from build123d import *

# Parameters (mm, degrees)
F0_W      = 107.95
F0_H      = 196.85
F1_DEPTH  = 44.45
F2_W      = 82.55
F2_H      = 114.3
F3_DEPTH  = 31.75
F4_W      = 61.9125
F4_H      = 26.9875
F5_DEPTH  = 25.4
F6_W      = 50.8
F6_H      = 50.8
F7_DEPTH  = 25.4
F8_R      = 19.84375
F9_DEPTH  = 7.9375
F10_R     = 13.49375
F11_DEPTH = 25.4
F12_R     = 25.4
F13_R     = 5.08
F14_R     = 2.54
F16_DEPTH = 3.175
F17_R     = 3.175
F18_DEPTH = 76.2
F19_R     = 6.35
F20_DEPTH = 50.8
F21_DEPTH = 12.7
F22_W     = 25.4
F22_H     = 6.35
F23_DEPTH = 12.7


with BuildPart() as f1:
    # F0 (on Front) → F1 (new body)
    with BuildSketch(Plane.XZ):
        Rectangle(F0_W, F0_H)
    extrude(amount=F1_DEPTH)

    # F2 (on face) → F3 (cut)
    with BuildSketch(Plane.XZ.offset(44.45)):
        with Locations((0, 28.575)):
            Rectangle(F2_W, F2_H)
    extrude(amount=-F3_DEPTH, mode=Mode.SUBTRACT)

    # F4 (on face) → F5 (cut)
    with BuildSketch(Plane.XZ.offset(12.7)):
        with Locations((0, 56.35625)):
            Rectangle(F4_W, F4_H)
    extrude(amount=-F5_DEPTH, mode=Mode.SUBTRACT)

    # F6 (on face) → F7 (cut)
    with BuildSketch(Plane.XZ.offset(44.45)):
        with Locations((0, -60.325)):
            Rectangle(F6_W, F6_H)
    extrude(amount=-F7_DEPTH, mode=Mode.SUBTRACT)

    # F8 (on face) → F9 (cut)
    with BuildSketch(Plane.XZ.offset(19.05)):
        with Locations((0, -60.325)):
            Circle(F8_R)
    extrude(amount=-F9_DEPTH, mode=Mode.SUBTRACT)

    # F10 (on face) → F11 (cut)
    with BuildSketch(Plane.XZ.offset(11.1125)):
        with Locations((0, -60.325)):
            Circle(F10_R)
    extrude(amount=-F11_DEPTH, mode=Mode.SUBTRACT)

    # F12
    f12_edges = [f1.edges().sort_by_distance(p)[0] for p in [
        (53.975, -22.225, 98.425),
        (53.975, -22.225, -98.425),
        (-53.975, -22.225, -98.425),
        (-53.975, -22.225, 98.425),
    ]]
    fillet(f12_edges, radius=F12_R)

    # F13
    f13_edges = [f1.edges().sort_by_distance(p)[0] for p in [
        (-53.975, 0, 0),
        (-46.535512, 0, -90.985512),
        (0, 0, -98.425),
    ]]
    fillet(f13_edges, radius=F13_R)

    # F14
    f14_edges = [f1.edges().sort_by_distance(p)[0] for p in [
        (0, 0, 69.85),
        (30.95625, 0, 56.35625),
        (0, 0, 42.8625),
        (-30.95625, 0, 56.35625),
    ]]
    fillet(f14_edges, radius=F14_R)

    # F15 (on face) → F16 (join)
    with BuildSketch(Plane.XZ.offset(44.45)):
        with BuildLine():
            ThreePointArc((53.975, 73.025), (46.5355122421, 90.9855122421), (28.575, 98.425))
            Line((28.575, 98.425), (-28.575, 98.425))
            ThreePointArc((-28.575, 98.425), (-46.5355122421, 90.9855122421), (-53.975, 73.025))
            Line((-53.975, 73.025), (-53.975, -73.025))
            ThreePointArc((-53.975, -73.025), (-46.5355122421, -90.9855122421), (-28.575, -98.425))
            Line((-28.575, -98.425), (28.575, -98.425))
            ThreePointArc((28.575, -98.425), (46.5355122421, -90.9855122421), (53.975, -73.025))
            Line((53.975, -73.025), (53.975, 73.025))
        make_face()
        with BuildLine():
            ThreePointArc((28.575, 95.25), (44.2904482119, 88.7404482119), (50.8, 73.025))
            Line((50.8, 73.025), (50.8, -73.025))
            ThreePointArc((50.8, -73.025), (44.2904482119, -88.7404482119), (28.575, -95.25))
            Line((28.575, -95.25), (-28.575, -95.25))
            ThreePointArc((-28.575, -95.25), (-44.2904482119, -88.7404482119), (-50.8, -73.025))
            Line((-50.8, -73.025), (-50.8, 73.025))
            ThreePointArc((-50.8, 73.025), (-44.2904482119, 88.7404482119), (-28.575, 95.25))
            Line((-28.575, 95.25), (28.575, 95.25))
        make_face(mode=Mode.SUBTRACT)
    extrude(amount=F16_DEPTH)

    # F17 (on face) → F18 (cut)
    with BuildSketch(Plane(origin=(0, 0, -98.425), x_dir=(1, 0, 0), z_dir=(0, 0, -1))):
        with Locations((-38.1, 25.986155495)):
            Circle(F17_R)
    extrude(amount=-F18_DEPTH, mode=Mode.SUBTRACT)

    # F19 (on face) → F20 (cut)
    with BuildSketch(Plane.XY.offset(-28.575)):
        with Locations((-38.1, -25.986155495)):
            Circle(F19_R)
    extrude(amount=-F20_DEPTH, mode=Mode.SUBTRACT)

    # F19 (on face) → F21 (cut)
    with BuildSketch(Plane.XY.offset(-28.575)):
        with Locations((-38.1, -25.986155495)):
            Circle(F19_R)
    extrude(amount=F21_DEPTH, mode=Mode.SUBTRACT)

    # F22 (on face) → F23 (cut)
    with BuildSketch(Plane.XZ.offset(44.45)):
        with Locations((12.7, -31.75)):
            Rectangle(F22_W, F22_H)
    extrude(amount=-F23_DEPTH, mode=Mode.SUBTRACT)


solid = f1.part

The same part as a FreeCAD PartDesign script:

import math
import FreeCAD as App
import Part
import Sketcher
from FreeCAD import Vector
Q = App.Units.Quantity


def edges_at(feature, points):
    """Names of the edges that pass closest to the given points."""
    edges = feature.Shape.Edges
    near = lambda p: min(range(len(edges)), key=lambda i: edges[i].distToShape(Part.Vertex(*p))[0])
    return sorted({f"Edge{near(p) + 1}" for p in points})

doc = App.newDocument("Part")
params = doc.addObject("Spreadsheet::Sheet", "Params")
for row, (alias, value) in enumerate([
    ("sketch1_width", "4.25 in"),
    ("sketch1_height", "7.75 in"),
    ("pad1_length", "1.75 in"),
    ("sketch2_height", "4.5 in"),
    ("sketch2_width", "3.25 in"),
    ("pocket1_length", "1.25 in"),
    ("sketch3_width", "2.4375 in"),
    ("sketch3_height", "1.0625 in"),
    ("pocket2_length", "1 in"),
    ("sketch4_width", "2 in"),
    ("pocket3_length", "1 in"),
    ("sketch5_diameter", "1.5625 in"),
    ("pocket4_length", "0.3125 in"),
    ("sketch6_diameter", "1.0625 in"),
    ("pocket5_length", "1 in"),
    ("fillet_radius", "1 in"),
    ("fillet2_radius", "0.2 in"),
    ("fillet3_radius", "0.1 in"),
    ("sketch7_radius", "1 in"),
    ("sketch7_radius2", "0.875 in"),
    ("sketch7_height", "5.75 in"),
    ("pad2_length", "0.125 in"),
    ("sketch8_diameter", "0.25 in"),
    ("pocket6_length", "3 in"),
    ("sketch9_diameter", "0.5 in"),
    ("pocket7_length", "2 in"),
    ("sketch10_diameter", "0.5 in"),
    ("pocket8_length", "0.5 in"),
    ("sketch11_width", "1 in"),
    ("sketch11_height", "0.25 in"),
    ("pocket9_length", "0.5 in"),
], start=1):
    params.set(f"A{row}", alias)
    params.set(f"B{row}", "=" + value)
    params.setAlias(f"B{row}", alias)

body = doc.addObject("PartDesign::Body", "Body")

sketch1 = doc.addObject("Sketcher::SketchObject", "Sketch")
body.addObject(sketch1)
sketch1.AttachmentSupport = (doc.XZ_Plane, [""])
sketch1.MapMode = "FlatFace"
sketch1.addGeometry([
    Part.LineSegment(Vector(-53.975, 98.425, 0), Vector(-53.975, -98.425, 0)),
    Part.LineSegment(Vector(-53.975, -98.425, 0), Vector(53.975, -98.425, 0)),
    Part.LineSegment(Vector(53.975, -98.425, 0), Vector(53.975, 98.425, 0)),
    Part.LineSegment(Vector(53.975, 98.425, 0), Vector(-53.975, 98.425, 0)),
], False)
sketch1.addConstraint([
    Sketcher.Constraint("Coincident", 0, 2, 1, 1),
    Sketcher.Constraint("Coincident", 1, 2, 2, 1),
    Sketcher.Constraint("Coincident", 2, 2, 3, 1),
    Sketcher.Constraint("Coincident", 3, 2, 0, 1),
    Sketcher.Constraint("Vertical", 0),
    Sketcher.Constraint("Horizontal", 1),
    Sketcher.Constraint("Vertical", 2),
    Sketcher.Constraint("Horizontal", 3),
    Sketcher.Constraint("Symmetric", 0, 2, 2, 2, -1, 1),
    Sketcher.Constraint("DistanceX", 1, 1, 1, 2, Q("4.25 in")),
    Sketcher.Constraint("DistanceY", 0, 2, 0, 1, Q("7.75 in")),
])
sketch1.setExpression("Constraints[9]", "Params.sketch1_width")
sketch1.setExpression("Constraints[10]", "Params.sketch1_height")
pad1 = doc.addObject("PartDesign::Pad", "Pad")
body.addObject(pad1)
pad1.Profile = sketch1
pad1.setExpression("Length", "Params.pad1_length")

sketch2 = doc.addObject("Sketcher::SketchObject", "Sketch001")
body.addObject(sketch2)
sketch2.AttachmentSupport = (doc.XZ_Plane, [""])
sketch2.MapMode = "FlatFace"
sketch2.AttachmentOffset = App.Placement(Vector(0, 0, 1.75 * 25.4), App.Rotation())
sketch2.addGeometry([
    Part.LineSegment(Vector(-41.275, 85.725, 0), Vector(-41.275, -28.575, 0)),
    Part.LineSegment(Vector(-41.275, -28.575, 0), Vector(41.275, -28.575, 0)),
    Part.LineSegment(Vector(41.275, -28.575, 0), Vector(41.275, 85.725, 0)),
    Part.LineSegment(Vector(41.275, 85.725, 0), Vector(-41.275, 85.725, 0)),
], False)
sketch2.addConstraint([
    Sketcher.Constraint("Coincident", 0, 2, 1, 1),
    Sketcher.Constraint("Coincident", 1, 2, 2, 1),
    Sketcher.Constraint("Coincident", 2, 2, 3, 1),
    Sketcher.Constraint("Coincident", 3, 2, 0, 1),
    Sketcher.Constraint("Vertical", 0),
    Sketcher.Constraint("Horizontal", 1),
    Sketcher.Constraint("Vertical", 2),
    Sketcher.Constraint("Horizontal", 3),
    Sketcher.Constraint("DistanceY", 0, 2, 0, 1, Q("4.5 in")),
    Sketcher.Constraint("DistanceX", 1, 1, 1, 2, Q("3.25 in")),
    Sketcher.Constraint("DistanceX", 0, 2, -1, 1, Q("1.625 in")),
    Sketcher.Constraint("DistanceY", 0, 2, -1, 1, Q("1.125 in")),
])
sketch2.setExpression("Constraints[8]", "Params.sketch2_height")
sketch2.setExpression("Constraints[9]", "Params.sketch2_width")
pocket1 = doc.addObject("PartDesign::Pocket", "Pocket")
body.addObject(pocket1)
pocket1.Profile = sketch2
pocket1.setExpression("Length", "Params.pocket1_length")

sketch3 = doc.addObject("Sketcher::SketchObject", "Sketch002")
body.addObject(sketch3)
sketch3.AttachmentSupport = (doc.XZ_Plane, [""])
sketch3.MapMode = "FlatFace"
sketch3.AttachmentOffset = App.Placement(Vector(0, 0, 0.5 * 25.4), App.Rotation())
sketch3.addGeometry([
    Part.LineSegment(Vector(-30.95625, 69.85, 0), Vector(-30.95625, 42.8625, 0)),
    Part.LineSegment(Vector(-30.95625, 42.8625, 0), Vector(30.95625, 42.8625, 0)),
    Part.LineSegment(Vector(30.95625, 42.8625, 0), Vector(30.95625, 69.85, 0)),
    Part.LineSegment(Vector(30.95625, 69.85, 0), Vector(-30.95625, 69.85, 0)),
], False)
sketch3.addConstraint([
    Sketcher.Constraint("Coincident", 0, 2, 1, 1),
    Sketcher.Constraint("Coincident", 1, 2, 2, 1),
    Sketcher.Constraint("Coincident", 2, 2, 3, 1),
    Sketcher.Constraint("Coincident", 3, 2, 0, 1),
    Sketcher.Constraint("Vertical", 0),
    Sketcher.Constraint("Horizontal", 1),
    Sketcher.Constraint("Vertical", 2),
    Sketcher.Constraint("Horizontal", 3),
    Sketcher.Constraint("DistanceX", 1, 1, 1, 2, Q("2.4375 in")),
    Sketcher.Constraint("DistanceY", 0, 2, 0, 1, Q("1.0625 in")),
    Sketcher.Constraint("DistanceY", -1, 1, 2, 2, Q("2.75 in")),
    Sketcher.Constraint("DistanceX", 0, 2, -1, 1, Q("1.21875 in")),
])
sketch3.setExpression("Constraints[8]", "Params.sketch3_width")
sketch3.setExpression("Constraints[9]", "Params.sketch3_height")
pocket2 = doc.addObject("PartDesign::Pocket", "Pocket001")
body.addObject(pocket2)
pocket2.Profile = sketch3
pocket2.setExpression("Length", "Params.pocket2_length")

sketch4 = doc.addObject("Sketcher::SketchObject", "Sketch003")
body.addObject(sketch4)
sketch4.AttachmentSupport = (doc.XZ_Plane, [""])
sketch4.MapMode = "FlatFace"
sketch4.AttachmentOffset = App.Placement(Vector(0, 0, 1.75 * 25.4), App.Rotation())
sketch4.addGeometry([
    Part.LineSegment(Vector(-25.4, -34.925, 0), Vector(-25.4, -85.725, 0)),
    Part.LineSegment(Vector(-25.4, -85.725, 0), Vector(25.4, -85.725, 0)),
    Part.LineSegment(Vector(25.4, -85.725, 0), Vector(25.4, -34.925, 0)),
    Part.LineSegment(Vector(25.4, -34.925, 0), Vector(-25.4, -34.925, 0)),
], False)
sketch4.addConstraint([
    Sketcher.Constraint("Coincident", 0, 2, 1, 1),
    Sketcher.Constraint("Coincident", 1, 2, 2, 1),
    Sketcher.Constraint("Coincident", 2, 2, 3, 1),
    Sketcher.Constraint("Coincident", 3, 2, 0, 1),
    Sketcher.Constraint("Vertical", 0),
    Sketcher.Constraint("Horizontal", 1),
    Sketcher.Constraint("Vertical", 2),
    Sketcher.Constraint("Horizontal", 3),
    Sketcher.Constraint("Equal", 3, 0),
    Sketcher.Constraint("DistanceX", 1, 1, 1, 2, Q("2 in")),
    Sketcher.Constraint("DistanceX", 0, 2, -1, 1, Q("1 in")),
    Sketcher.Constraint("DistanceY", 0, 2, -1, 1, Q("3.375 in")),
])
sketch4.setExpression("Constraints[9]", "Params.sketch4_width")
pocket3 = doc.addObject("PartDesign::Pocket", "Pocket002")
body.addObject(pocket3)
pocket3.Profile = sketch4
pocket3.setExpression("Length", "Params.pocket3_length")

sketch5 = doc.addObject("Sketcher::SketchObject", "Sketch004")
body.addObject(sketch5)
sketch5.AttachmentSupport = (doc.XZ_Plane, [""])
sketch5.MapMode = "FlatFace"
sketch5.AttachmentOffset = App.Placement(Vector(0, 0, 0.75 * 25.4), App.Rotation())
sketch5.addGeometry(Part.Circle(Vector(0, -60.325, 0), Vector(0, 0, 1), 19.84375), False)
sketch5.addConstraint([
    Sketcher.Constraint("PointOnObject", 0, 3, -2),
    Sketcher.Constraint("Diameter", 0, Q("1.5625 in")),
    Sketcher.Constraint("DistanceY", 0, 3, -1, 1, Q("2.375 in")),
])
sketch5.setExpression("Constraints[1]", "Params.sketch5_diameter")
pocket4 = doc.addObject("PartDesign::Pocket", "Pocket003")
body.addObject(pocket4)
pocket4.Profile = sketch5
pocket4.setExpression("Length", "Params.pocket4_length")

sketch6 = doc.addObject("Sketcher::SketchObject", "Sketch005")
body.addObject(sketch6)
sketch6.AttachmentSupport = (doc.XZ_Plane, [""])
sketch6.MapMode = "FlatFace"
sketch6.AttachmentOffset = App.Placement(Vector(0, 0, 0.4375 * 25.4), App.Rotation())
sketch6.addGeometry(Part.Circle(Vector(0, -60.325, 0), Vector(0, 0, 1), 13.49375), False)
sketch6.addConstraint([
    Sketcher.Constraint("PointOnObject", 0, 3, -2),
    Sketcher.Constraint("Diameter", 0, Q("1.0625 in")),
    Sketcher.Constraint("DistanceY", 0, 3, -1, 1, Q("2.375 in")),
])
sketch6.setExpression("Constraints[1]", "Params.sketch6_diameter")
pocket5 = doc.addObject("PartDesign::Pocket", "Pocket004")
body.addObject(pocket5)
pocket5.Profile = sketch6
pocket5.setExpression("Length", "Params.pocket5_length")
doc.recompute()

fillet = doc.addObject("PartDesign::Fillet", "Fillet")
body.addObject(fillet)
fillet.Base = (pocket5, edges_at(pocket5, [
    (53.975, -22.225, 98.425),
    (53.975, -22.225, -98.425),
    (-53.975, -22.225, -98.425),
    (-53.975, -22.225, 98.425),
]))
fillet.setExpression("Radius", "Params.fillet_radius")
doc.recompute()

fillet2 = doc.addObject("PartDesign::Fillet", "Fillet001")
body.addObject(fillet2)
fillet2.Base = (fillet, edges_at(fillet, [(-53.975, 0, 0), (-46.536, 0, -90.986), (0, 0, -98.425)]))
fillet2.setExpression("Radius", "Params.fillet2_radius")
doc.recompute()

fillet3 = doc.addObject("PartDesign::Fillet", "Fillet002")
body.addObject(fillet3)
fillet3.Base = (fillet2, edges_at(fillet2, [
    (0, 0, 69.85),
    (30.956, 0, 56.356),
    (0, 0, 42.862),
    (-30.956, 0, 56.356),
]))
fillet3.setExpression("Radius", "Params.fillet3_radius")

sketch7 = doc.addObject("Sketcher::SketchObject", "Sketch006")
body.addObject(sketch7)
sketch7.AttachmentSupport = (doc.XZ_Plane, [""])
sketch7.MapMode = "FlatFace"
sketch7.AttachmentOffset = App.Placement(Vector(0, 0, 1.75 * 25.4), App.Rotation())
sketch7.addGeometry([
    Part.ArcOfCircle(Part.Circle(Vector(28.575, 73.025, 0), Vector(0, 0, 1), 25.4), math.radians(0), math.radians(90)),
    Part.LineSegment(Vector(28.575, 98.425, 0), Vector(-28.575, 98.425, 0)),
    Part.ArcOfCircle(Part.Circle(Vector(-28.575, 73.025, 0), Vector(0, 0, 1), 25.4), math.radians(90), math.radians(180)),
    Part.LineSegment(Vector(-53.975, 73.025, 0), Vector(-53.975, -73.025, 0)),
    Part.ArcOfCircle(Part.Circle(Vector(-28.575, -73.025, 0), Vector(0, 0, 1), 25.4), math.radians(180), math.radians(270)),
    Part.LineSegment(Vector(-28.575, -98.425, 0), Vector(28.575, -98.425, 0)),
    Part.ArcOfCircle(Part.Circle(Vector(28.575, -73.025, 0), Vector(0, 0, 1), 25.4), math.radians(-90), math.radians(0)),
    Part.LineSegment(Vector(53.975, -73.025, 0), Vector(53.975, 73.025, 0)),
    Part.LineSegment(Vector(-28.575, 95.25, 0), Vector(28.575, 95.25, 0)),
    Part.ArcOfCircle(Part.Circle(Vector(28.575, 73.025, 0), Vector(0, 0, 1), 22.225), math.radians(0), math.radians(90)),
    Part.LineSegment(Vector(50.8, 73.025, 0), Vector(50.8, -73.025, 0)),
    Part.ArcOfCircle(Part.Circle(Vector(28.575, -73.025, 0), Vector(0, 0, 1), 22.225), math.radians(-90), math.radians(0)),
    Part.LineSegment(Vector(28.575, -95.25, 0), Vector(-28.575, -95.25, 0)),
    Part.ArcOfCircle(Part.Circle(Vector(-28.575, -73.025, 0), Vector(0, 0, 1), 22.225), math.radians(180), math.radians(270)),
    Part.LineSegment(Vector(-50.8, -73.025, 0), Vector(-50.8, 73.025, 0)),
    Part.ArcOfCircle(Part.Circle(Vector(-28.575, 73.025, 0), Vector(0, 0, 1), 22.225), math.radians(90), math.radians(180)),
], False)
sketch7.addConstraint([
    Sketcher.Constraint("Tangent", 0, 2, 1, 1),
    Sketcher.Constraint("Tangent", 1, 2, 2, 1),
    Sketcher.Constraint("Tangent", 2, 2, 3, 1),
    Sketcher.Constraint("Tangent", 3, 2, 4, 1),
    Sketcher.Constraint("Tangent", 4, 2, 5, 1),
    Sketcher.Constraint("Tangent", 5, 2, 6, 1),
    Sketcher.Constraint("Tangent", 6, 2, 7, 1),
    Sketcher.Constraint("Tangent", 7, 2, 0, 1),
    Sketcher.Constraint("Tangent", 8, 2, 9, 2),
    Sketcher.Constraint("Tangent", 9, 1, 10, 1),
    Sketcher.Constraint("Tangent", 10, 2, 11, 2),
    Sketcher.Constraint("Tangent", 11, 1, 12, 1),
    Sketcher.Constraint("Tangent", 12, 2, 13, 2),
    Sketcher.Constraint("Tangent", 13, 1, 14, 1),
    Sketcher.Constraint("Tangent", 14, 2, 15, 2),
    Sketcher.Constraint("Tangent", 15, 1, 8, 1),
    Sketcher.Constraint("Horizontal", 1),
    Sketcher.Constraint("Vertical", 3),
    Sketcher.Constraint("Horizontal", 5),
    Sketcher.Constraint("Vertical", 7),
    Sketcher.Constraint("Horizontal", 8),
    Sketcher.Constraint("Vertical", 10),
    Sketcher.Constraint("Horizontal", 12),
    Sketcher.Constraint("Vertical", 14),
    Sketcher.Constraint("Coincident", 9, 3, 0, 3),
    Sketcher.Constraint("Coincident", 11, 3, 6, 3),
    Sketcher.Constraint("Coincident", 13, 3, 4, 3),
    Sketcher.Constraint("Equal", 0, 2),
    Sketcher.Constraint("Equal", 2, 4),
    Sketcher.Constraint("Equal", 4, 6),
    Sketcher.Constraint("Equal", 13, 15),
    Sketcher.Constraint("Symmetric", 0, 3, 4, 3, -1, 1),
    Sketcher.Constraint("Radius", 0, Q("1 in")),
    Sketcher.Constraint("DistanceX", -1, 1, 9, 1, Q("2 in")),
    Sketcher.Constraint("Radius", 9, Q("0.875 in")),
    Sketcher.Constraint("DistanceY", 3, 2, 3, 1, Q("5.75 in")),
])
sketch7.setExpression("Constraints[32]", "Params.sketch7_radius")
sketch7.setExpression("Constraints[34]", "Params.sketch7_radius2")
sketch7.setExpression("Constraints[35]", "Params.sketch7_height")
pad2 = doc.addObject("PartDesign::Pad", "Pad001")
body.addObject(pad2)
pad2.Profile = sketch7
pad2.setExpression("Length", "Params.pad2_length")

sketch8 = doc.addObject("Sketcher::SketchObject", "Sketch007")
body.addObject(sketch8)
sketch8.AttachmentSupport = (doc.XY_Plane, [""])
sketch8.MapMode = "FlatFace"
sketch8.AttachmentOffset = App.Placement(Vector(0, 0, -3.875 * 25.4), App.Rotation())
sketch8.addGeometry(Part.Circle(Vector(-38.1, -25.986155, 0), Vector(0, 0, 1), 3.175), False)
sketch8.addConstraint([
    Sketcher.Constraint("Diameter", 0, Q("0.25 in")),
    Sketcher.Constraint("DistanceX", 0, 3, -1, 1, Q("1.5 in")),
    Sketcher.Constraint("DistanceY", 0, 3, -1, 1, 25.986155),
])
sketch8.setExpression("Constraints[0]", "Params.sketch8_diameter")
pocket6 = doc.addObject("PartDesign::Pocket", "Pocket005")
body.addObject(pocket6)
pocket6.Profile = sketch8
pocket6.setExpression("Length", "Params.pocket6_length")
pocket6.Reversed = True

sketch9 = doc.addObject("Sketcher::SketchObject", "Sketch008")
body.addObject(sketch9)
sketch9.AttachmentSupport = (doc.XY_Plane, [""])
sketch9.MapMode = "FlatFace"
sketch9.AttachmentOffset = App.Placement(Vector(0, 0, -1.125 * 25.4), App.Rotation())
sketch9.addGeometry(Part.Circle(Vector(-38.1, -25.986155, 0), Vector(0, 0, 1), 6.35), False)
sketch9.addConstraint([
    Sketcher.Constraint("Diameter", 0, Q("0.5 in")),
    Sketcher.Constraint("DistanceX", 0, 3, -1, 1, Q("1.5 in")),
    Sketcher.Constraint("DistanceY", 0, 3, -1, 1, 25.986155),
])
sketch9.setExpression("Constraints[0]", "Params.sketch9_diameter")
pocket7 = doc.addObject("PartDesign::Pocket", "Pocket006")
body.addObject(pocket7)
pocket7.Profile = sketch9
pocket7.setExpression("Length", "Params.pocket7_length")

sketch10 = doc.addObject("Sketcher::SketchObject", "Sketch009")
body.addObject(sketch10)
sketch10.AttachmentSupport = (doc.XY_Plane, [""])
sketch10.MapMode = "FlatFace"
sketch10.AttachmentOffset = App.Placement(Vector(0, 0, -1.125 * 25.4), App.Rotation())
sketch10.addGeometry(Part.Circle(Vector(-38.1, -25.986155, 0), Vector(0, 0, 1), 6.35), False)
sketch10.addConstraint([
    Sketcher.Constraint("Diameter", 0, Q("0.5 in")),
    Sketcher.Constraint("DistanceX", 0, 3, -1, 1, Q("1.5 in")),
    Sketcher.Constraint("DistanceY", 0, 3, -1, 1, 25.986155),
])
sketch10.setExpression("Constraints[0]", "Params.sketch10_diameter")
pocket8 = doc.addObject("PartDesign::Pocket", "Pocket007")
body.addObject(pocket8)
pocket8.Profile = sketch10
pocket8.setExpression("Length", "Params.pocket8_length")
pocket8.Reversed = True

sketch11 = doc.addObject("Sketcher::SketchObject", "Sketch010")
body.addObject(sketch11)
sketch11.AttachmentSupport = (doc.XZ_Plane, [""])
sketch11.MapMode = "FlatFace"
sketch11.AttachmentOffset = App.Placement(Vector(0, 0, 1.75 * 25.4), App.Rotation())
sketch11.addGeometry([
    Part.LineSegment(Vector(0, -28.575, 0), Vector(0, -34.925, 0)),
    Part.LineSegment(Vector(0, -34.925, 0), Vector(25.4, -34.925, 0)),
    Part.LineSegment(Vector(25.4, -34.925, 0), Vector(25.4, -28.575, 0)),
    Part.LineSegment(Vector(25.4, -28.575, 0), Vector(0, -28.575, 0)),
], False)
sketch11.addConstraint([
    Sketcher.Constraint("Coincident", 0, 2, 1, 1),
    Sketcher.Constraint("Coincident", 1, 2, 2, 1),
    Sketcher.Constraint("Coincident", 2, 2, 3, 1),
    Sketcher.Constraint("Coincident", 3, 2, 0, 1),
    Sketcher.Constraint("Vertical", 0),
    Sketcher.Constraint("Horizontal", 1),
    Sketcher.Constraint("Vertical", 2),
    Sketcher.Constraint("Horizontal", 3),
    Sketcher.Constraint("PointOnObject", 0, 2, -2),
    Sketcher.Constraint("DistanceX", 1, 1, 1, 2, Q("1 in")),
    Sketcher.Constraint("DistanceY", 0, 2, 0, 1, Q("0.25 in")),
    Sketcher.Constraint("DistanceY", 0, 2, -1, 1, Q("1.375 in")),
])
sketch11.setExpression("Constraints[9]", "Params.sketch11_width")
sketch11.setExpression("Constraints[10]", "Params.sketch11_height")
pocket9 = doc.addObject("PartDesign::Pocket", "Pocket008")
body.addObject(pocket9)
pocket9.Profile = sketch11
pocket9.setExpression("Length", "Params.pocket9_length")

doc.recompute()
